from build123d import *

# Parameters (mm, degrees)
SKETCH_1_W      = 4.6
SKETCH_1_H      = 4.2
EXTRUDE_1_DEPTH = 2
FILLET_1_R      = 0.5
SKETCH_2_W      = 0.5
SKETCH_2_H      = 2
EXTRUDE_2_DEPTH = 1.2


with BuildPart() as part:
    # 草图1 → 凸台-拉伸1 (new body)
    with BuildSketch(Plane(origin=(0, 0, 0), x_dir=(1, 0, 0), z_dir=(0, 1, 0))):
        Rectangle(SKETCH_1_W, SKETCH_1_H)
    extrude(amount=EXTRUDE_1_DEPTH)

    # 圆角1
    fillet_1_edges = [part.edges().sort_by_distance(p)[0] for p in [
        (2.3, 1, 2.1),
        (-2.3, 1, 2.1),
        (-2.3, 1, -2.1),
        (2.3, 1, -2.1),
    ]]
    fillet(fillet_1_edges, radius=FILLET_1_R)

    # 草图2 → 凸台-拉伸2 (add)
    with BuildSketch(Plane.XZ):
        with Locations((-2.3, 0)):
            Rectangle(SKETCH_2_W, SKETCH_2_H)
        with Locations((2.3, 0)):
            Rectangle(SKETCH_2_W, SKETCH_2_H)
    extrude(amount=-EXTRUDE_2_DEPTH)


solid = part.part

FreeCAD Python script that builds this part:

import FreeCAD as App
import Part
import Sketcher


def edges_at(feature, points):
    """Names of the edges that pass closest to the given points."""
    edges = feature.Shape.Edges
    near = lambda p: min(range(len(edges)), key=lambda i: edges[i].distToShape(Part.Vertex(*p))[0])
    return sorted({f"Edge{near(p) + 1}" for p in points})


def add_polygon(sketch, points):
    """Adds a closed chain of lines whose ends are joined by coincident constraints."""
    first, n = sketch.GeometryCount, len(points)
    for a, b in zip(points, points[1:] + points[:1]):
        sketch.addGeometry(Part.LineSegment(App.Vector(*a, 0), App.Vector(*b, 0)), False)
    for i in range(n):
        sketch.addConstraint(Sketcher.Constraint("Coincident", first + i, 2, first + (i + 1) % n, 1))

doc = App.newDocument("Part")
body = doc.addObject("PartDesign::Body", "Body")

# Sketch on XZ plane
sketch1 = body.newObject("Sketcher::SketchObject", "Sketch")
sketch1.AttachmentSupport = (doc.getObject("XZ_Plane"), [""])
sketch1.MapMode = "FlatFace"
add_polygon(sketch1, [(-2.3, -2.1), (-2.3, 2.1), (2.3, 2.1), (2.3, -2.1)])  # lines 0-3
sketch1.addConstraint([
    Sketcher.Constraint("Vertical", 0),
    Sketcher.Constraint("Horizontal", 1),
    Sketcher.Constraint("Vertical", 2),
    Sketcher.Constraint("Horizontal", 3),
    Sketcher.Constraint("Symmetric", 0, 2, 2, 2, -1, 1),
    Sketcher.Constraint("DistanceX", 1, 1, 1, 2, 4.6),
    Sketcher.Constraint("DistanceY", 0, 1, 0, 2, 4.2),
])
pad1 = body.newObject("PartDesign::Pad", "Pad")
pad1.Profile = sketch1
pad1.Length = 2
pad1.Reversed = True
doc.recompute()

fillet = body.newObject("PartDesign::Fillet", "Fillet")
fillet.Base = (pad1, edges_at(pad1, [
    (2.3, 1, 2.1),
    (-2.3, 1, 2.1),
    (-2.3, 1, -2.1),
    (2.3, 1, -2.1),
]))
fillet.Radius = 0.5

# Sketch on XZ plane
sketch2 = body.newObject("Sketcher::SketchObject", "Sketch001")
sketch2.AttachmentSupport = (doc.getObject("XZ_Plane"), [""])
sketch2.MapMode = "FlatFace"
add_polygon(sketch2, [(-2.55, 1), (-2.55, -1), (-2.05, -1), (-2.05, 1)])  # lines 0-3
add_polygon(sketch2, [(2.05, 1), (2.05, -1), (2.55, -1), (2.55, 1)])  # lines 4-7
sketch2.addConstraint([
    Sketcher.Constraint("Vertical", 0),
    Sketcher.Constraint("Horizontal", 1),
    Sketcher.Constraint("Vertical", 2),
    Sketcher.Constraint("Horizontal", 3),
    Sketcher.Constraint("Vertical", 4),
    Sketcher.Constraint("Horizontal", 5),
    Sketcher.Constraint("Vertical", 6),
    Sketcher.Constraint("Horizontal", 7),
    Sketcher.Constraint("Symmetric", 2, 2, 4, 2, -1, 1),
    Sketcher.Constraint("Symmetric", 0, 2, 6, 2, -1, 1),
    Sketcher.Constraint("Horizontal", 1, 2, 4, 2),
    Sketcher.Constraint("DistanceY", 0, 2, 0, 1, 2.0),
    Sketcher.Constraint("DistanceX", 1, 1, 1, 2, 0.5),
    Sketcher.Constraint("DistanceX", 1, 2, 4, 2, 4.1),
])
pad2 = body.newObject("PartDesign::Pad", "Pad001")
pad2.Profile = sketch2
pad2.Length = 1.2
pad2.Reversed = True

doc.recompute()
